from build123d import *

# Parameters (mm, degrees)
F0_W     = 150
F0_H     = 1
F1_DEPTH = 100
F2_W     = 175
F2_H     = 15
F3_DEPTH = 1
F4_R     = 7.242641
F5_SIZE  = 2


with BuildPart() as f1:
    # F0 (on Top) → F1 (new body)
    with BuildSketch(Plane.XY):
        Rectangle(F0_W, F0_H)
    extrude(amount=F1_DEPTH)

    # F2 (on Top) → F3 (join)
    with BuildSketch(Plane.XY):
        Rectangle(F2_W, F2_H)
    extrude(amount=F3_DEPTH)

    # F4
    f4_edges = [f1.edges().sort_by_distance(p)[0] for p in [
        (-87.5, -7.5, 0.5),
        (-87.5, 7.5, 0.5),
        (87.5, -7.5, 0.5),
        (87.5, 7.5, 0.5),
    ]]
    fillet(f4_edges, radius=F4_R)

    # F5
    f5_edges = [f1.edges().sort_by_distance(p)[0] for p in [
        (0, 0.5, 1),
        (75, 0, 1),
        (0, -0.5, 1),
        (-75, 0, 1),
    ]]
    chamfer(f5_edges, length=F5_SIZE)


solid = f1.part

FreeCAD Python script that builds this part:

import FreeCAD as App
import Part
import Sketcher
Q = App.Units.Quantity


def edges_at(feature, points):
    """Names of the edges that pass closest to the given points."""
    edges = feature.Shape.Edges
    near = lambda p: min(range(len(edges)), key=lambda i: edges[i].distToShape(Part.Vertex(*p))[0])
    return sorted({f"Edge{near(p) + 1}" for p in points})

doc = App.newDocument("Part")
body = doc.addObject("PartDesign::Body", "Body")

# Sketch on XY plane
sketch1 = body.newObject("Sketcher::SketchObject", "Sketch")
sketch1.AttachmentSupport = (doc.getObject("XY_Plane"), [""])
sketch1.MapMode = "FlatFace"
sketch1.addGeometry(Part.LineSegment(App.Vector(-75, 0.5, 0), App.Vector(-75, -0.5, 0)), False)
sketch1.addGeometry(Part.LineSegment(App.Vector(-75, -0.5, 0), App.Vector(75, -0.5, 0)), False)
sketch1.addGeometry(Part.LineSegment(App.Vector(75, -0.5, 0), App.Vector(75, 0.5, 0)), False)
sketch1.addGeometry(Part.LineSegment(App.Vector(75, 0.5, 0), App.Vector(-75, 0.5, 0)), False)
sketch1.addConstraint(Sketcher.Constraint("Coincident", 0, 2, 1, 1))
sketch1.addConstraint(Sketcher.Constraint("Coincident", 1, 2, 2, 1))
sketch1.addConstraint(Sketcher.Constraint("Coincident", 2, 2, 3, 1))
sketch1.addConstraint(Sketcher.Constraint("Coincident", 3, 2, 0, 1))
sketch1.addConstraint(Sketcher.Constraint("Vertical", 0))
sketch1.addConstraint(Sketcher.Constraint("Horizontal", 1))
sketch1.addConstraint(Sketcher.Constraint("Vertical", 2))
sketch1.addConstraint(Sketcher.Constraint("Horizontal", 3))
sketch1.addConstraint(Sketcher.Constraint("Symmetric", 0, 2, 2, 2, -1, 1))
sketch1.addConstraint(Sketcher.Constraint("DistanceX", 1, 1, 1, 2, Q("150 mm")))
sketch1.addConstraint(Sketcher.Constraint("DistanceY", 0, 2, 0, 1, Q("1 mm")))
pad1 = body.newObject("PartDesign::Pad", "Pad")
pad1.Profile = sketch1
pad1.Length = 100

# Sketch on XY plane
sketch2 = body.newObject("Sketcher::SketchObject", "Sketch001")
sketch2.AttachmentSupport = (doc.getObject("XY_Plane"), [""])
sketch2.MapMode = "FlatFace"
sketch2.addGeometry(Part.LineSegment(App.Vector(-87.5, 7.5, 0), App.Vector(-87.5, -7.5, 0)), False)
sketch2.addGeometry(Part.LineSegment(App.Vector(-87.5, -7.5, 0), App.Vector(87.5, -7.5, 0)), False)
sketch2.addGeometry(Part.LineSegment(App.Vector(87.5, -7.5, 0), App.Vector(87.5, 7.5, 0)), False)
sketch2.addGeometry(Part.LineSegment(App.Vector(87.5, 7.5, 0), App.Vector(-87.5, 7.5, 0)), False)
sketch2.addConstraint(Sketcher.Constraint("Coincident", 0, 2, 1, 1))
sketch2.addConstraint(Sketcher.Constraint("Coincident", 1, 2, 2, 1))
sketch2.addConstraint(Sketcher.Constraint("Coincident", 2, 2, 3, 1))
sketch2.addConstraint(Sketcher.Constraint("Coincident", 3, 2, 0, 1))
sketch2.addConstraint(Sketcher.Constraint("Vertical", 0))
sketch2.addConstraint(Sketcher.Constraint("Horizontal", 1))
sketch2.addConstraint(Sketcher.Constraint("Vertical", 2))
sketch2.addConstraint(Sketcher.Constraint("Horizontal", 3))
sketch2.addConstraint(Sketcher.Constraint("Symmetric", 0, 2, 2, 2, -1, 1))
sketch2.addConstraint(Sketcher.Constraint("DistanceX", 1, 1, 1, 2, Q("175 mm")))
sketch2.addConstraint(Sketcher.Constraint("DistanceY", 0, 2, 0, 1, Q("15 mm")))
pad2 = body.newObject("PartDesign::Pad", "Pad001")
pad2.Profile = sketch2
pad2.Length = 1
doc.recompute()

fillet = body.newObject("PartDesign::Fillet", "Fillet")
fillet.Base = (pad2, edges_at(pad2, [
    (-87.5, -7.5, 0.5),
    (-87.5, 7.5, 0.5),
    (87.5, -7.5, 0.5),
    (87.5, 7.5, 0.5),
]))
fillet.Radius = 7.242641
doc.recompute()

chamfer = body.newObject("PartDesign::Chamfer", "Chamfer")
chamfer.Base = (fillet, edges_at(fillet, [
    (0, 0.5, 1),
    (75, 0, 1),
    (0, -0.5, 1),
    (-75, 0, 1),
]))
chamfer.Size = 2

doc.recompute()
